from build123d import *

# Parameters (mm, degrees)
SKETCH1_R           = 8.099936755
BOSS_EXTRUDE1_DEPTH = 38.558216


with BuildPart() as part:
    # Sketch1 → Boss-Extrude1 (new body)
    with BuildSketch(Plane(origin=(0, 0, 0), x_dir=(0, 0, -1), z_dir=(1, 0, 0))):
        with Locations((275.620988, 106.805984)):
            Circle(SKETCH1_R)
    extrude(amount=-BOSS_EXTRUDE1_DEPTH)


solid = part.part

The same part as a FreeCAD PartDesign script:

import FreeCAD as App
import Part
import Sketcher
from FreeCAD import Vector

doc = App.newDocument("Part")
params = doc.addObject("Spreadsheet::Sheet", "Params")
for row, (alias, value) in enumerate([
    ("pad1_length", "38.558216 mm"),
], start=1):
    params.set(f"A{row}", alias)
    params.set(f"B{row}", "=" + value)
    params.setAlias(f"B{row}", alias)

body = doc.addObject("PartDesign::Body", "Body")

# Sketch on YZ plane
sketch1 = doc.addObject("Sketcher::SketchObject", "Sketch")
body.addObject(sketch1)
sketch1.AttachmentSupport = (doc.YZ_Plane, [""])
sketch1.MapMode = "FlatFace"
sketch1.addGeometry(Part.Circle(Vector(107, -276, 0), Vector(0, 0, 1), 8), False)
sketch1.addConstraint([
    Sketcher.Constraint("Diameter", 0, 16.199874),
    Sketcher.Constraint("DistanceY", 0, 3, -1, 1, 275.620988),
    Sketcher.Constraint("DistanceX", -1, 1, 0, 3, 106.805984),
])
pad1 = doc.addObject("PartDesign::Pad", "Pad")
body.addObject(pad1)
pad1.Profile = sketch1
pad1.setExpression("Length", "Params.pad1_length")
pad1.Reversed = True

doc.recompute()
